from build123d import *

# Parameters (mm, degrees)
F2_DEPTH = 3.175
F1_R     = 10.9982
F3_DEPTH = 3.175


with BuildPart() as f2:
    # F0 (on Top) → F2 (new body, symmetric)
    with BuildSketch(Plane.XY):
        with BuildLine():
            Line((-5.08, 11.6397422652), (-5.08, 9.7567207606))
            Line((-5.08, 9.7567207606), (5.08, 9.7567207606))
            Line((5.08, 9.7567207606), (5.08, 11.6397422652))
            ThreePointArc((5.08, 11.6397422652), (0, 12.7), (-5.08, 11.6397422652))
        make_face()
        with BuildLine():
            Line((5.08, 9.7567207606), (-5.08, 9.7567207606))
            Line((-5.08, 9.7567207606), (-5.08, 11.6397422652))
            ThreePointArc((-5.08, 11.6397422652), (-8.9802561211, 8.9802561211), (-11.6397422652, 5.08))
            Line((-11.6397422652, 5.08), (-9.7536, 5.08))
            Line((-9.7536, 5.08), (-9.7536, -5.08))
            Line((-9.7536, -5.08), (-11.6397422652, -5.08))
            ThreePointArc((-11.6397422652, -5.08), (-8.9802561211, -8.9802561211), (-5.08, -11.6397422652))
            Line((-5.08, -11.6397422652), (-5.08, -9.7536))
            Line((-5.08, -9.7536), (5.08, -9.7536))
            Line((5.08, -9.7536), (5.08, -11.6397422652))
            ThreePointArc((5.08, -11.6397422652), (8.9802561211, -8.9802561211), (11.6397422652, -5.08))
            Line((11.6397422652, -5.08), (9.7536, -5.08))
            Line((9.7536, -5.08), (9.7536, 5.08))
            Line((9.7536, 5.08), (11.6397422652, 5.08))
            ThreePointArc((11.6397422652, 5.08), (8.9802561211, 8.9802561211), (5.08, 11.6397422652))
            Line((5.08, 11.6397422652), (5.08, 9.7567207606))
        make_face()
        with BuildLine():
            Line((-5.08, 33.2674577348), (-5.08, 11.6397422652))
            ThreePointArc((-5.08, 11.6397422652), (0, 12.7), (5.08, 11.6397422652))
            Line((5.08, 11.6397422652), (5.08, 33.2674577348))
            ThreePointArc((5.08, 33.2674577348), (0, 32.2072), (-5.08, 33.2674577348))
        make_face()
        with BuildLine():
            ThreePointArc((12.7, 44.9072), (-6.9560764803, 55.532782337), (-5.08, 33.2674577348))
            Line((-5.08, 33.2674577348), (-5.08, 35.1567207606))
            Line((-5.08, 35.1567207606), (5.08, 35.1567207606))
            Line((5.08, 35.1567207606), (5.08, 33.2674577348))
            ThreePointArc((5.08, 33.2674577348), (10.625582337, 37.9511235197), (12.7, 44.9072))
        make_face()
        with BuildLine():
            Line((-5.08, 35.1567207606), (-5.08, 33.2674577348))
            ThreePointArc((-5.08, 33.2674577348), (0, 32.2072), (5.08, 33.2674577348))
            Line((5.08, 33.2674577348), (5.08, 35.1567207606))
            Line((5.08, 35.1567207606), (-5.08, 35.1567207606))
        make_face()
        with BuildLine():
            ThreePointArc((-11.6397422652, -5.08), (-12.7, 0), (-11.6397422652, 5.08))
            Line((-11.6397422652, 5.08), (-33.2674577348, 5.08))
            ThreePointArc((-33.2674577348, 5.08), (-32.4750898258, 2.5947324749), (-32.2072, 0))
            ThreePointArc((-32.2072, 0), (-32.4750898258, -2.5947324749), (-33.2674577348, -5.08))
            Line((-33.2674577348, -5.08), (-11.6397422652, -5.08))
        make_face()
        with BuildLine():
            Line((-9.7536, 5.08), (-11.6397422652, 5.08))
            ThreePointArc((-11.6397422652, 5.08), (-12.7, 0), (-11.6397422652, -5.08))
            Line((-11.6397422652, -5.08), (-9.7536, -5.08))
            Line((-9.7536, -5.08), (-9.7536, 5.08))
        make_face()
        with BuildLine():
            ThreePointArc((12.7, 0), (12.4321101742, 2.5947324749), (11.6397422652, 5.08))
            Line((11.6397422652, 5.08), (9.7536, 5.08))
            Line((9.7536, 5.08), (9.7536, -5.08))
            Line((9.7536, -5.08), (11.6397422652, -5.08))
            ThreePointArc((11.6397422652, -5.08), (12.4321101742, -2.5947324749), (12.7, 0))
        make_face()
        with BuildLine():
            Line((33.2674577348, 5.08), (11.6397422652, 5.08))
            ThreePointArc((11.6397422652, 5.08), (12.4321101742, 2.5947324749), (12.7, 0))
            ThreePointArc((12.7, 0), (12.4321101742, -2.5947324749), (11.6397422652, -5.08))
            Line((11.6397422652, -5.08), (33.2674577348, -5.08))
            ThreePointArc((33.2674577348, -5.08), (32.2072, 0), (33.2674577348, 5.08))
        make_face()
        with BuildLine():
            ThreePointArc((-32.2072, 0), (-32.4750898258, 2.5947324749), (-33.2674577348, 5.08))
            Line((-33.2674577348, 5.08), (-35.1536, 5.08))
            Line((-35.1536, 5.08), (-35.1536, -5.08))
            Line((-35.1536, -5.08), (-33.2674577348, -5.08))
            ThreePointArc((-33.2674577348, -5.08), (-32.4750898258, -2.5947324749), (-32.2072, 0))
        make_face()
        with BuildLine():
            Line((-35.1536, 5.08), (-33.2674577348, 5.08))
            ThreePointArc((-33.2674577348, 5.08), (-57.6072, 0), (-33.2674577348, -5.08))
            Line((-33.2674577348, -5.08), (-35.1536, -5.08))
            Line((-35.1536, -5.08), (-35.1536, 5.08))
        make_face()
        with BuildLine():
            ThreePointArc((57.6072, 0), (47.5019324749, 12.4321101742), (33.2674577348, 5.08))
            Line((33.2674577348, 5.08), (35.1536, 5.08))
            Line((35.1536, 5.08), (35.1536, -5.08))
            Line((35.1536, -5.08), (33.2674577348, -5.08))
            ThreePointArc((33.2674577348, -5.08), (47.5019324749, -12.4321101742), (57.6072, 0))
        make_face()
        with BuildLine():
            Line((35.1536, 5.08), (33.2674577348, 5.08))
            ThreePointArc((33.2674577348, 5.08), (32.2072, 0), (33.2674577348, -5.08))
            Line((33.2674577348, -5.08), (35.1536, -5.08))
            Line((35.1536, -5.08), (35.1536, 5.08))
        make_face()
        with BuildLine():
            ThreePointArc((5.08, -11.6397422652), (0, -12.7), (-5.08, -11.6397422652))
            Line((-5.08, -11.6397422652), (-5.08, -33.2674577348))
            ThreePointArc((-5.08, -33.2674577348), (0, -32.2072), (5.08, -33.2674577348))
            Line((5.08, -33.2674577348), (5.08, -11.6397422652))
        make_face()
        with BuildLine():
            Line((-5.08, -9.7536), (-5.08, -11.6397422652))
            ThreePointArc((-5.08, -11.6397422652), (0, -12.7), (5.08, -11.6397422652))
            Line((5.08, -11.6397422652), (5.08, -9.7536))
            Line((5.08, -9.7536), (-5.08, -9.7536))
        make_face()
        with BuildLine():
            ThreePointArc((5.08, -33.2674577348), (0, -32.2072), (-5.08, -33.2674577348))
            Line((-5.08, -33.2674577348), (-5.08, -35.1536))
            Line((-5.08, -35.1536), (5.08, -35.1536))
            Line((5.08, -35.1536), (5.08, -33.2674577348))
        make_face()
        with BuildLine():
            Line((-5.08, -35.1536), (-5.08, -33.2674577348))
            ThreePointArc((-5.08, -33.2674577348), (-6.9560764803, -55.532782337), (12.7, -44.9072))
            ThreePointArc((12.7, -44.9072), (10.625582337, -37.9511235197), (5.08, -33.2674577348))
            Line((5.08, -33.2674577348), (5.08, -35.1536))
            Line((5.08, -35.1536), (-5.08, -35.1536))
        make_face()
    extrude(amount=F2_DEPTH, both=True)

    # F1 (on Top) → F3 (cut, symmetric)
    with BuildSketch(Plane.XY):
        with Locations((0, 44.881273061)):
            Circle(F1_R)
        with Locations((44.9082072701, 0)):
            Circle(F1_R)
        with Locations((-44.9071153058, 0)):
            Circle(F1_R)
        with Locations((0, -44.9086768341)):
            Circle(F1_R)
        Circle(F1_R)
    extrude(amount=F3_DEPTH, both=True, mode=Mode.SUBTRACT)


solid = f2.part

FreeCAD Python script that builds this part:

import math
import FreeCAD as App
import Part
import Sketcher

V = App.Vector
Q = App.Units.Quantity

doc = App.newDocument("Part")
body = doc.addObject("PartDesign::Body", "Body")

# Sketch on XY plane
sketch1 = body.newObject("Sketcher::SketchObject", "Sketch")
sketch1.AttachmentSupport = (doc.getObject("XY_Plane"), [""])
sketch1.MapMode = "FlatFace"
sketch1.addGeometry([
    Part.ArcOfCircle(Part.Circle(V(0, 0, 0), V(0, 0, 1), 13), math.radians(114), math.radians(156)),  # 0
    Part.LineSegment(V(-12, 5, 0), V(-33, 5, 0)),  # 1
    Part.ArcOfCircle(Part.Circle(V(-45, 0, 0), V(0, 0, 1), 13), math.radians(24), math.radians(336)),  # 2
    Part.LineSegment(V(-33, -5, 0), V(-12, -5, 0)),  # 3
    Part.ArcOfCircle(Part.Circle(V(0, 0, 0), V(0, 0, 1), 13), math.radians(-156), math.radians(-114)),  # 4
    Part.LineSegment(V(-5, -12, 0), V(-5, -33, 0)),  # 5
    Part.ArcOfCircle(Part.Circle(V(0, -45, 0), V(0, 0, 1), 13), math.radians(114), math.radians(426)),  # 6
    Part.LineSegment(V(5, -33, 0), V(5, -12, 0)),  # 7
    Part.ArcOfCircle(Part.Circle(V(0, 0, 0), V(0, 0, 1), 13), math.radians(-66), math.radians(-24)),  # 8
    Part.LineSegment(V(12, -5, 0), V(33, -5, 0)),  # 9
    Part.ArcOfCircle(Part.Circle(V(45, 0, 0), V(0, 0, 1), 13), math.radians(-156), math.radians(0)),  # 10
    Part.ArcOfCircle(Part.Circle(V(45, 0, 0), V(0, 0, 1), 13), math.radians(0), math.radians(156)),  # 11
    Part.LineSegment(V(33, 5, 0), V(12, 5, 0)),  # 12
    Part.ArcOfCircle(Part.Circle(V(0, 0, 0), V(0, 0, 1), 13), math.radians(24), math.radians(66)),  # 13
    Part.LineSegment(V(5, 12, 0), V(5, 33, 0)),  # 14
    Part.ArcOfCircle(Part.Circle(V(0, 45, 0), V(0, 0, 1), 13), math.radians(-66), math.radians(246)),  # 15
    Part.LineSegment(V(-5, 33, 0), V(-5, 12, 0)),  # 16
], False)
sketch1.addConstraint([
    Sketcher.Constraint("Coincident", 0, 2, 1, 1),
    Sketcher.Constraint("Coincident", 1, 2, 2, 1),
    Sketcher.Constraint("Coincident", 2, 2, 3, 1),
    Sketcher.Constraint("Coincident", 3, 2, 4, 1),
    Sketcher.Constraint("Coincident", 4, 2, 5, 1),
    Sketcher.Constraint("Coincident", 5, 2, 6, 1),
    Sketcher.Constraint("Coincident", 6, 2, 7, 1),
    Sketcher.Constraint("Coincident", 7, 2, 8, 1),
    Sketcher.Constraint("Coincident", 8, 2, 9, 1),
    Sketcher.Constraint("Coincident", 9, 2, 10, 1),
    Sketcher.Constraint("Tangent", 10, 2, 11, 1),
    Sketcher.Constraint("Coincident", 11, 2, 12, 1),
    Sketcher.Constraint("Coincident", 12, 2, 13, 1),
    Sketcher.Constraint("Coincident", 13, 2, 14, 1),
    Sketcher.Constraint("Coincident", 14, 2, 15, 1),
    Sketcher.Constraint("Coincident", 15, 2, 16, 1),
    Sketcher.Constraint("Coincident", 16, 2, 0, 1),
    Sketcher.Constraint("Horizontal", 1),
    Sketcher.Constraint("Horizontal", 3),
    Sketcher.Constraint("Vertical", 5),
    Sketcher.Constraint("Vertical", 7),
    Sketcher.Constraint("Horizontal", 9),
    Sketcher.Constraint("Horizontal", 12),
    Sketcher.Constraint("Vertical", 14),
    Sketcher.Constraint("Vertical", 16),
    Sketcher.Constraint("Coincident", 0, 3, -1, 1),
    Sketcher.Constraint("Coincident", 4, 3, -1, 1),
    Sketcher.Constraint("Coincident", 8, 3, -1, 1),
    Sketcher.Constraint("Coincident", 13, 3, -1, 1),
    Sketcher.Constraint("Equal", 0, 2),
    Sketcher.Constraint("Equal", 2, 4),
    Sketcher.Constraint("Equal", 4, 6),
    Sketcher.Constraint("Equal", 6, 8),
    Sketcher.Constraint("Equal", 8, 10),
    Sketcher.Constraint("Equal", 10, 11),
    Sketcher.Constraint("Equal", 11, 13),
    Sketcher.Constraint("Equal", 13, 15),
    Sketcher.Constraint("Symmetric", 2, 3, 10, 3, -1, 1),
    Sketcher.Constraint("Symmetric", 6, 3, 15, 3, -1, 1),
    Sketcher.Constraint("Symmetric", 5, 2, 6, 2, -2),
    Sketcher.Constraint("Symmetric", 2, 2, 9, 2, -2),
    Sketcher.Constraint("PointOnObject", 10, 2, -1),
    Sketcher.Constraint("Horizontal", 1, 2, 11, 2),
    Sketcher.Constraint("Horizontal", 14, 2, 15, 2),
    Sketcher.Constraint("Vertical", 1, 2, 2, 2),
    Sketcher.Constraint("Vertical", 7, 2, 13, 2),
    Sketcher.Constraint("Equal", 12, 5),
    Sketcher.Constraint("Radius", 0, Q("0.5 in")),
    Sketcher.Constraint("DistanceY", -1, 1, 0, 2, Q("0.2 in")),
    Sketcher.Constraint("DistanceX", 4, 2, -1, 1, Q("0.2 in")),
    Sketcher.Constraint("DistanceX", 2, 3, -1, 1, Q("1.768 in")),
])
pad1 = body.newObject("PartDesign::Pad", "Pad")
pad1.Profile = sketch1
pad1.Length = Q("0.25 in")
pad1.Midplane = True

# Sketch on XY plane
sketch2 = body.newObject("Sketcher::SketchObject", "Sketch001")
sketch2.AttachmentSupport = (doc.getObject("XY_Plane"), [""])
sketch2.MapMode = "FlatFace"
sketch2.addGeometry([
    Part.Circle(V(0, 45, 0), V(0, 0, 1), 11),  # 0
    Part.Circle(V(45, 0, 0), V(0, 0, 1), 11),  # 1
    Part.Circle(V(-45, 0, 0), V(0, 0, 1), 11),  # 2
    Part.Circle(V(0, -45, 0), V(0, 0, 1), 11),  # 3
    Part.Circle(V(0, 0, 0), V(0, 0, 1), 11),  # 4
], False)
sketch2.addConstraint([
    Sketcher.Constraint("Coincident", 4, 3, -1, 1),
    Sketcher.Constraint("Equal", 0, 1),
    Sketcher.Constraint("Equal", 1, 2),
    Sketcher.Constraint("Equal", 2, 3),
    Sketcher.Constraint("Equal", 3, 4),
    Sketcher.Constraint("PointOnObject", 0, 3, -2),
    Sketcher.Constraint("PointOnObject", 1, 3, -1),
    Sketcher.Constraint("PointOnObject", 2, 3, -1),
    Sketcher.Constraint("PointOnObject", 3, 3, -2),
    Sketcher.Constraint("Diameter", 0, Q("0.866 in")),
    Sketcher.Constraint("DistanceY", 3, 3, 0, 3, Q("89.78995 mm")),
    Sketcher.Constraint("DistanceY", -1, 1, 0, 3, Q("44.881273 mm")),
    Sketcher.Constraint("DistanceX", -1, 1, 1, 3, Q("44.908207 mm")),
    Sketcher.Constraint("DistanceX", 2, 3, -1, 1, Q("44.907115 mm")),
])
pocket1 = body.newObject("PartDesign::Pocket", "Pocket")
pocket1.Profile = sketch2
pocket1.Length = Q("0.25 in")
pocket1.Midplane = True

doc.recompute()
